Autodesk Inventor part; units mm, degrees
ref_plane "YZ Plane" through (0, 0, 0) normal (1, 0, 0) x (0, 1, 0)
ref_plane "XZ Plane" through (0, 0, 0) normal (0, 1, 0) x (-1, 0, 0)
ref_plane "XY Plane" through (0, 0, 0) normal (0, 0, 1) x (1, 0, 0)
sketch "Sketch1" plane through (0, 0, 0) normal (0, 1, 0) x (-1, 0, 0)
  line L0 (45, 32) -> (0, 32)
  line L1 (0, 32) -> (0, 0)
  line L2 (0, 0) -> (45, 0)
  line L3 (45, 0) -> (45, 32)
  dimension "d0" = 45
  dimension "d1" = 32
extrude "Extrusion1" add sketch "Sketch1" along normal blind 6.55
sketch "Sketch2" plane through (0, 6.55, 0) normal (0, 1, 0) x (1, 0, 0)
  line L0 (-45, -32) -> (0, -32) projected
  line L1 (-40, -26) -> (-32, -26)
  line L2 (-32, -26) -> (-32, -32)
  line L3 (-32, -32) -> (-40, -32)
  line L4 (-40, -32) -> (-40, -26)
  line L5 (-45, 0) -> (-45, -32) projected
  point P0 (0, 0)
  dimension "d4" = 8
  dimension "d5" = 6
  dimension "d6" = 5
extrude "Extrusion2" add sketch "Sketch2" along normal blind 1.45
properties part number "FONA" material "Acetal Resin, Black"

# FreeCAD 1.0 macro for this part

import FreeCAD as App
import Part
import Sketcher

doc = App.newDocument("Part")
body = doc.addObject("PartDesign::Body", "Body")

# Sketch on XZ plane
sketch1 = doc.addObject("Sketcher::SketchObject", "Sketch")
body.addObject(sketch1)
sketch1.AttachmentSupport = (doc.XZ_Plane, [""])
sketch1.MapMode = "FlatFace"
sketch1.addGeometry(Part.LineSegment(App.Vector(-45, 0, 0), App.Vector(-45, 32, 0)), False)
sketch1.addGeometry(Part.LineSegment(App.Vector(-45, 32, 0), App.Vector(0, 32, 0)), False)
sketch1.addGeometry(Part.LineSegment(App.Vector(0, 32, 0), App.Vector(0, 0, 0)), False)
sketch1.addGeometry(Part.LineSegment(App.Vector(0, 0, 0), App.Vector(-45, 0, 0)), False)
sketch1.addConstraint(Sketcher.Constraint("Coincident", 0, 2, 1, 1))
sketch1.addConstraint(Sketcher.Constraint("Coincident", 1, 2, 2, 1))
sketch1.addConstraint(Sketcher.Constraint("Coincident", 2, 2, 3, 1))
sketch1.addConstraint(Sketcher.Constraint("Coincident", 3, 2, 0, 1))
sketch1.addConstraint(Sketcher.Constraint("Vertical", 0))
sketch1.addConstraint(Sketcher.Constraint("Horizontal", 1))
sketch1.addConstraint(Sketcher.Constraint("Vertical", 2))
sketch1.addConstraint(Sketcher.Constraint("Horizontal", 3))
sketch1.addConstraint(Sketcher.Constraint("Coincident", 2, 2, -1, 1))
sketch1.addConstraint(Sketcher.Constraint("DistanceX", 1, 1, 1, 2, 45.0))
sketch1.addConstraint(Sketcher.Constraint("DistanceY", 0, 1, 0, 2, 32.0))
pad1 = doc.addObject("PartDesign::Pad", "Pad")
body.addObject(pad1)
pad1.Profile = sketch1
pad1.Length = 6.55
pad1.Reversed = True

# Sketch on XZ plane
sketch2 = doc.addObject("Sketcher::SketchObject", "Sketch001")
body.addObject(sketch2)
sketch2.AttachmentSupport = (doc.XZ_Plane, [""])
sketch2.MapMode = "FlatFace"
sketch2.AttachmentOffset = App.Placement(App.Vector(0, 0, -6.55), App.Rotation())
sketch2.addGeometry(Part.LineSegment(App.Vector(-40, 26, 0), App.Vector(-40, 32, 0)), False)
sketch2.addGeometry(Part.LineSegment(App.Vector(-40, 32, 0), App.Vector(-32, 32, 0)), False)
sketch2.addGeometry(Part.LineSegment(App.Vector(-32, 32, 0), App.Vector(-32, 26, 0)), False)
sketch2.addGeometry(Part.LineSegment(App.Vector(-32, 26, 0), App.Vector(-40, 26, 0)), False)
sketch2.addConstraint(Sketcher.Constraint("Coincident", 0, 2, 1, 1))
sketch2.addConstraint(Sketcher.Constraint("Coincident", 1, 2, 2, 1))
sketch2.addConstraint(Sketcher.Constraint("Coincident", 2, 2, 3, 1))
sketch2.addConstraint(Sketcher.Constraint("Coincident", 3, 2, 0, 1))
sketch2.addConstraint(Sketcher.Constraint("Vertical", 0))
sketch2.addConstraint(Sketcher.Constraint("Horizontal", 1))
sketch2.addConstraint(Sketcher.Constraint("Vertical", 2))
sketch2.addConstraint(Sketcher.Constraint("Horizontal", 3))
sketch2.addConstraint(Sketcher.Constraint("DistanceX", 1, 1, 1, 2, 8.0))
sketch2.addConstraint(Sketcher.Constraint("DistanceY", 0, 1, 0, 2, 6.0))
sketch2.addConstraint(Sketcher.Constraint("DistanceX", 0, 2, -1, 1, 40.0))
sketch2.addConstraint(Sketcher.Constraint("DistanceY", -1, 1, 0, 2, 32.0))
pad2 = doc.addObject("PartDesign::Pad", "Pad001")
body.addObject(pad2)
pad2.Profile = sketch2
pad2.Length = 1.45
pad2.Reversed = True

doc.recompute()
